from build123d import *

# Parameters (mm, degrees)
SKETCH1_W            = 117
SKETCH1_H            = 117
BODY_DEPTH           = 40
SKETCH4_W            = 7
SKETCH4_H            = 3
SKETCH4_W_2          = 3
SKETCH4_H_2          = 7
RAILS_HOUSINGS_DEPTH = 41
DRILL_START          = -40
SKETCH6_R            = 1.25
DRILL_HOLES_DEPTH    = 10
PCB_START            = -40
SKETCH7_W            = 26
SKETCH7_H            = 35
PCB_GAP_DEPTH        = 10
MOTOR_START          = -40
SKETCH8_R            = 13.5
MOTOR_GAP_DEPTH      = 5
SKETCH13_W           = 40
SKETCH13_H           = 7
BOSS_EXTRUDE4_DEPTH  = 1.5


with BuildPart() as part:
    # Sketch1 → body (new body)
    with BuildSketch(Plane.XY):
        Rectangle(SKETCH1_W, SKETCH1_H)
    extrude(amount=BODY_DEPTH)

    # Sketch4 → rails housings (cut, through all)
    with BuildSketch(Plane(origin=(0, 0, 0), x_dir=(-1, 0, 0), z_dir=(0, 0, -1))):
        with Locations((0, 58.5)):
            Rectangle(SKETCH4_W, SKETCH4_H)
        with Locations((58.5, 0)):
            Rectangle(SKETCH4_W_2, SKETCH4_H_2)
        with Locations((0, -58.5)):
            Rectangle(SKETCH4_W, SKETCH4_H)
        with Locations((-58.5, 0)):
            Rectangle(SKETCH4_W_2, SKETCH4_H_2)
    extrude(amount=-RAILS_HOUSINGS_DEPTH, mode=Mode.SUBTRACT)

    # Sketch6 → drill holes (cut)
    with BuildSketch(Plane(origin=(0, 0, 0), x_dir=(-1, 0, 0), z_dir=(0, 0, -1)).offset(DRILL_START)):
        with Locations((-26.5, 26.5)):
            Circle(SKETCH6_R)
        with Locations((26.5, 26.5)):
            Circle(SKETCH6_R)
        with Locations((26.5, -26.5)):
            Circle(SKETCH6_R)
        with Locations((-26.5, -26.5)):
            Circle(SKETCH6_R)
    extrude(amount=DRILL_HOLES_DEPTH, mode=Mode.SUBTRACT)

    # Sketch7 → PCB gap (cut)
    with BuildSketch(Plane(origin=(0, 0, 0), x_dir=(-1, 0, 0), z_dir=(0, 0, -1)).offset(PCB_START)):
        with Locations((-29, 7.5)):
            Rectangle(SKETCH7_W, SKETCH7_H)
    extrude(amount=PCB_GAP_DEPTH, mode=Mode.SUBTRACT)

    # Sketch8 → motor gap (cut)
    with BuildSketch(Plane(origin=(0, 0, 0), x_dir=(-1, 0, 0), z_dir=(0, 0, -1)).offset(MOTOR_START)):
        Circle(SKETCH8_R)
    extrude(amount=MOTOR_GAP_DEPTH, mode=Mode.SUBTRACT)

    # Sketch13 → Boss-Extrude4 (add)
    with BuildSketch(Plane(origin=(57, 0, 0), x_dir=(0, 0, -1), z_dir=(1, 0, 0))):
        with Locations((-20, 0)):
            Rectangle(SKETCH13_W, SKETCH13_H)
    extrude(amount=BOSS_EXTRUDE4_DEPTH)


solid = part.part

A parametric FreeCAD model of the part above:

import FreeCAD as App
import Part
import Sketcher

V = App.Vector


def add_polygon(sketch, points):
    """Adds a closed chain of lines whose ends are joined by coincident constraints."""
    first, n = sketch.GeometryCount, len(points)
    for a, b in zip(points, points[1:] + points[:1]):
        sketch.addGeometry(Part.LineSegment(App.Vector(*a, 0), App.Vector(*b, 0)), False)
    for i in range(n):
        sketch.addConstraint(Sketcher.Constraint("Coincident", first + i, 2, first + (i + 1) % n, 1))

doc = App.newDocument("Part")
body = doc.addObject("PartDesign::Body", "Body")

sketch1 = doc.addObject("Sketcher::SketchObject", "Sketch")
body.addObject(sketch1)
sketch1.AttachmentSupport = (doc.XY_Plane, [""])
sketch1.MapMode = "FlatFace"
add_polygon(sketch1, [(-58, 58), (-58, -58), (58, -58), (58, 58)])
sketch1.addConstraint(Sketcher.Constraint("Vertical", 0))
sketch1.addConstraint(Sketcher.Constraint("Horizontal", 1))
sketch1.addConstraint(Sketcher.Constraint("Vertical", 2))
sketch1.addConstraint(Sketcher.Constraint("Horizontal", 3))
sketch1.addConstraint(Sketcher.Constraint("Symmetric", 0, 2, 2, 2, -1, 1))
sketch1.addConstraint(Sketcher.Constraint("Equal", 3, 0))
sketch1.addConstraint(Sketcher.Constraint("DistanceX", 1, 1, 1, 2, 117.0))
pad1 = doc.addObject("PartDesign::Pad", "Pad")
body.addObject(pad1)
pad1.Profile = sketch1
pad1.Length = 40

sketch2 = doc.addObject("Sketcher::SketchObject", "Sketch001")
body.addObject(sketch2)
sketch2.AttachmentSupport = (doc.XY_Plane, [""])
sketch2.MapMode = "FlatFace"
add_polygon(sketch2, [(3.5, 60), (3.5, 57), (-3.5, 57), (-3.5, 60)])
add_polygon(sketch2, [(-57, 3.5), (-57, -3.5), (-60, -3.5), (-60, 3.5)])
add_polygon(sketch2, [(3.5, -57), (3.5, -60), (-3.5, -60), (-3.5, -57)])
add_polygon(sketch2, [(60, 3.5), (60, -3.5), (57, -3.5), (57, 3.5)])
sketch2.addConstraint(Sketcher.Constraint("Vertical", 0))
sketch2.addConstraint(Sketcher.Constraint("Horizontal", 1))
sketch2.addConstraint(Sketcher.Constraint("Vertical", 2))
sketch2.addConstraint(Sketcher.Constraint("Horizontal", 3))
sketch2.addConstraint(Sketcher.Constraint("Vertical", 4))
sketch2.addConstraint(Sketcher.Constraint("Horizontal", 5))
sketch2.addConstraint(Sketcher.Constraint("Vertical", 6))
sketch2.addConstraint(Sketcher.Constraint("Horizontal", 7))
sketch2.addConstraint(Sketcher.Constraint("Vertical", 8))
sketch2.addConstraint(Sketcher.Constraint("Horizontal", 9))
sketch2.addConstraint(Sketcher.Constraint("Vertical", 10))
sketch2.addConstraint(Sketcher.Constraint("Horizontal", 11))
sketch2.addConstraint(Sketcher.Constraint("Vertical", 12))
sketch2.addConstraint(Sketcher.Constraint("Horizontal", 13))
sketch2.addConstraint(Sketcher.Constraint("Vertical", 14))
sketch2.addConstraint(Sketcher.Constraint("Horizontal", 15))
sketch2.addConstraint(Sketcher.Constraint("Symmetric", 2, 2, 8, 2, -1, 1))
sketch2.addConstraint(Sketcher.Constraint("Symmetric", 0, 2, 10, 2, -1, 1))
sketch2.addConstraint(Sketcher.Constraint("Symmetric", 6, 2, 12, 2, -1, 1))
sketch2.addConstraint(Sketcher.Constraint("Symmetric", 4, 2, 14, 2, -1, 1))
sketch2.addConstraint(Sketcher.Constraint("Horizontal", 5, 2, 12, 2))
sketch2.addConstraint(Sketcher.Constraint("Vertical", 3, 2, 8, 2))
sketch2.addConstraint(Sketcher.Constraint("Equal", 15, 0))
sketch2.addConstraint(Sketcher.Constraint("Equal", 11, 4))
sketch2.addConstraint(Sketcher.Constraint("DistanceX", 1, 2, 1, 1, 7.0))
sketch2.addConstraint(Sketcher.Constraint("DistanceX", 5, 2, 5, 1, 3.0))
sketch2.addConstraint(Sketcher.Constraint("DistanceY", -1, 1, 0, 2, 57.0))
sketch2.addConstraint(Sketcher.Constraint("DistanceX", 4, 2, -1, 1, 57.0))
pocket1 = doc.addObject("PartDesign::Pocket", "Pocket")
body.addObject(pocket1)
pocket1.Profile = sketch2
pocket1.Type = "ThroughAll"
pocket1.Reversed = True

sketch3 = doc.addObject("Sketcher::SketchObject", "Sketch002")
body.addObject(sketch3)
sketch3.AttachmentSupport = (doc.XY_Plane, [""])
sketch3.MapMode = "FlatFace"
sketch3.AttachmentOffset = App.Placement(V(0, 0, 40), App.Rotation())
sketch3.addGeometry(Part.Circle(V(26.5, 26.5, 0), V(0, 0, 1), 1.2), False)
sketch3.addGeometry(Part.Circle(V(-26.5, 26.5, 0), V(0, 0, 1), 1.2), False)
sketch3.addGeometry(Part.Circle(V(-26.5, -26.5, 0), V(0, 0, 1), 1.2), False)
sketch3.addGeometry(Part.Circle(V(26.5, -26.5, 0), V(0, 0, 1), 1.2), False)
sketch3.addConstraint(Sketcher.Constraint("Equal", 0, 1))
sketch3.addConstraint(Sketcher.Constraint("Equal", 1, 2))
sketch3.addConstraint(Sketcher.Constraint("Equal", 2, 3))
sketch3.addConstraint(Sketcher.Constraint("Symmetric", 0, 3, 2, 3, -1, 1))
sketch3.addConstraint(Sketcher.Constraint("Symmetric", 1, 3, 3, 3, -1, 1))
sketch3.addConstraint(Sketcher.Constraint("Symmetric", 0, 3, 1, 3, -2))
sketch3.addConstraint(Sketcher.Constraint("Diameter", 0, 2.5))
sketch3.addConstraint(Sketcher.Constraint("DistanceX", 1, 3, 0, 3, 53.0))
sketch3.addConstraint(Sketcher.Constraint("DistanceY", 2, 3, 1, 3, 53.0))
pocket2 = doc.addObject("PartDesign::Pocket", "Pocket001")
body.addObject(pocket2)
pocket2.Profile = sketch3
pocket2.Length = 10

sketch4 = doc.addObject("Sketcher::SketchObject", "Sketch003")
body.addObject(sketch4)
sketch4.AttachmentSupport = (doc.XY_Plane, [""])
sketch4.MapMode = "FlatFace"
sketch4.AttachmentOffset = App.Placement(V(0, 0, 40), App.Rotation())
add_polygon(sketch4, [(42, 25), (42, -10), (16, -10), (16, 25)])
sketch4.addConstraint(Sketcher.Constraint("Vertical", 0))
sketch4.addConstraint(Sketcher.Constraint("Horizontal", 1))
sketch4.addConstraint(Sketcher.Constraint("Vertical", 2))
sketch4.addConstraint(Sketcher.Constraint("Horizontal", 3))
sketch4.addConstraint(Sketcher.Constraint("DistanceX", 1, 2, 1, 1, 26.0))
sketch4.addConstraint(Sketcher.Constraint("DistanceY", 0, 2, 0, 1, 35.0))
sketch4.addConstraint(Sketcher.Constraint("DistanceX", -1, 1, 0, 2, 42.0))
sketch4.addConstraint(Sketcher.Constraint("DistanceY", 0, 2, -1, 1, 10.0))
pocket3 = doc.addObject("PartDesign::Pocket", "Pocket002")
body.addObject(pocket3)
pocket3.Profile = sketch4
pocket3.Length = 10

sketch5 = doc.addObject("Sketcher::SketchObject", "Sketch004")
body.addObject(sketch5)
sketch5.AttachmentSupport = (doc.XY_Plane, [""])
sketch5.MapMode = "FlatFace"
sketch5.AttachmentOffset = App.Placement(V(0, 0, 40), App.Rotation())
sketch5.addGeometry(Part.Circle(V(0, 0, 0), V(0, 0, 1), 14), False)
sketch5.addConstraint(Sketcher.Constraint("Coincident", 0, 3, -1, 1))
sketch5.addConstraint(Sketcher.Constraint("Diameter", 0, 27.0))
pocket4 = doc.addObject("PartDesign::Pocket", "Pocket003")
body.addObject(pocket4)
pocket4.Profile = sketch5
pocket4.Length = 5

sketch6 = doc.addObject("Sketcher::SketchObject", "Sketch005")
body.addObject(sketch6)
sketch6.AttachmentSupport = (doc.YZ_Plane, [""])
sketch6.MapMode = "FlatFace"
sketch6.AttachmentOffset = App.Placement(V(0, 0, 57), App.Rotation())
add_polygon(sketch6, [(4, 40), (-4, 40), (-4, 0), (4, 0)])
sketch6.addConstraint(Sketcher.Constraint("Horizontal", 0))
sketch6.addConstraint(Sketcher.Constraint("Vertical", 1))
sketch6.addConstraint(Sketcher.Constraint("Horizontal", 2))
sketch6.addConstraint(Sketcher.Constraint("Vertical", 3))
sketch6.addConstraint(Sketcher.Constraint("Symmetric", 1, 2, 2, 2, -1, 1))
sketch6.addConstraint(Sketcher.Constraint("DistanceX", 0, 2, 0, 1, 7.0))
sketch6.addConstraint(Sketcher.Constraint("DistanceY", 1, 2, 1, 1, 40.0))
pad2 = doc.addObject("PartDesign::Pad", "Pad001")
body.addObject(pad2)
pad2.Profile = sketch6
pad2.Length = 1.5

doc.recompute()
